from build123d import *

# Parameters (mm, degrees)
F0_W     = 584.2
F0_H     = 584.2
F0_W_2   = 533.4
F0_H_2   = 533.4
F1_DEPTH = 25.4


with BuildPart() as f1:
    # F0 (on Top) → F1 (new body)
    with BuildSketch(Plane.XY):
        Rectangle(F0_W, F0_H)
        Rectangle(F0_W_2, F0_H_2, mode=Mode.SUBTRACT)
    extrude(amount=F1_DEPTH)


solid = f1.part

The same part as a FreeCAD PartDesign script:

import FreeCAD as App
import Part
import Sketcher
Q = App.Units.Quantity

doc = App.newDocument("Part")
params = doc.addObject("Spreadsheet::Sheet", "Params")
for row, (alias, value) in enumerate([
    ("sketch1_width", "23 in"),
    ("sketch1_width2", "21 in"),
    ("pad1_length", "1 in"),
], start=1):
    params.set(f"A{row}", alias)
    params.set(f"B{row}", "=" + value)
    params.setAlias(f"B{row}", alias)

body = doc.addObject("PartDesign::Body", "Body")

# Sketch on XY plane
sketch1 = body.newObject("Sketcher::SketchObject", "Sketch")
sketch1.AttachmentSupport = (doc.getObject("XY_Plane"), [""])
sketch1.MapMode = "FlatFace"
sketch1.addGeometry(Part.LineSegment(App.Vector(-292, 292, 0), App.Vector(-292, -292, 0)), False)
sketch1.addGeometry(Part.LineSegment(App.Vector(-292, -292, 0), App.Vector(292, -292, 0)), False)
sketch1.addGeometry(Part.LineSegment(App.Vector(292, -292, 0), App.Vector(292, 292, 0)), False)
sketch1.addGeometry(Part.LineSegment(App.Vector(292, 292, 0), App.Vector(-292, 292, 0)), False)
sketch1.addGeometry(Part.LineSegment(App.Vector(267, -267, 0), App.Vector(-267, -267, 0)), False)
sketch1.addGeometry(Part.LineSegment(App.Vector(-267, -267, 0), App.Vector(-267, 267, 0)), False)
sketch1.addGeometry(Part.LineSegment(App.Vector(-267, 267, 0), App.Vector(267, 267, 0)), False)
sketch1.addGeometry(Part.LineSegment(App.Vector(267, 267, 0), App.Vector(267, -267, 0)), False)
sketch1.addConstraint(Sketcher.Constraint("Coincident", 0, 2, 1, 1))
sketch1.addConstraint(Sketcher.Constraint("Coincident", 1, 2, 2, 1))
sketch1.addConstraint(Sketcher.Constraint("Coincident", 2, 2, 3, 1))
sketch1.addConstraint(Sketcher.Constraint("Coincident", 3, 2, 0, 1))
sketch1.addConstraint(Sketcher.Constraint("Coincident", 4, 2, 5, 1))
sketch1.addConstraint(Sketcher.Constraint("Coincident", 5, 2, 6, 1))
sketch1.addConstraint(Sketcher.Constraint("Coincident", 6, 2, 7, 1))
sketch1.addConstraint(Sketcher.Constraint("Coincident", 7, 2, 4, 1))
sketch1.addConstraint(Sketcher.Constraint("Vertical", 0))
sketch1.addConstraint(Sketcher.Constraint("Horizontal", 1))
sketch1.addConstraint(Sketcher.Constraint("Vertical", 2))
sketch1.addConstraint(Sketcher.Constraint("Horizontal", 3))
sketch1.addConstraint(Sketcher.Constraint("Horizontal", 4))
sketch1.addConstraint(Sketcher.Constraint("Vertical", 5))
sketch1.addConstraint(Sketcher.Constraint("Horizontal", 6))
sketch1.addConstraint(Sketcher.Constraint("Vertical", 7))
sketch1.addConstraint(Sketcher.Constraint("Symmetric", 0, 2, 2, 2, -1, 1))
sketch1.addConstraint(Sketcher.Constraint("Symmetric", 4, 2, 6, 2, -1, 1))
sketch1.addConstraint(Sketcher.Constraint("Equal", 3, 0))
sketch1.addConstraint(Sketcher.Constraint("Equal", 6, 5))
sketch1.addConstraint(Sketcher.Constraint("DistanceX", 1, 1, 1, 2, Q("23 in")))
sketch1.addConstraint(Sketcher.Constraint("DistanceX", 4, 2, 4, 1, Q("21 in")))
sketch1.setExpression("Constraints[20]", "Params.sketch1_width")
sketch1.setExpression("Constraints[21]", "Params.sketch1_width2")
pad1 = body.newObject("PartDesign::Pad", "Pad")
pad1.Profile = sketch1
pad1.setExpression("Length", "Params.pad1_length")

doc.recompute()
